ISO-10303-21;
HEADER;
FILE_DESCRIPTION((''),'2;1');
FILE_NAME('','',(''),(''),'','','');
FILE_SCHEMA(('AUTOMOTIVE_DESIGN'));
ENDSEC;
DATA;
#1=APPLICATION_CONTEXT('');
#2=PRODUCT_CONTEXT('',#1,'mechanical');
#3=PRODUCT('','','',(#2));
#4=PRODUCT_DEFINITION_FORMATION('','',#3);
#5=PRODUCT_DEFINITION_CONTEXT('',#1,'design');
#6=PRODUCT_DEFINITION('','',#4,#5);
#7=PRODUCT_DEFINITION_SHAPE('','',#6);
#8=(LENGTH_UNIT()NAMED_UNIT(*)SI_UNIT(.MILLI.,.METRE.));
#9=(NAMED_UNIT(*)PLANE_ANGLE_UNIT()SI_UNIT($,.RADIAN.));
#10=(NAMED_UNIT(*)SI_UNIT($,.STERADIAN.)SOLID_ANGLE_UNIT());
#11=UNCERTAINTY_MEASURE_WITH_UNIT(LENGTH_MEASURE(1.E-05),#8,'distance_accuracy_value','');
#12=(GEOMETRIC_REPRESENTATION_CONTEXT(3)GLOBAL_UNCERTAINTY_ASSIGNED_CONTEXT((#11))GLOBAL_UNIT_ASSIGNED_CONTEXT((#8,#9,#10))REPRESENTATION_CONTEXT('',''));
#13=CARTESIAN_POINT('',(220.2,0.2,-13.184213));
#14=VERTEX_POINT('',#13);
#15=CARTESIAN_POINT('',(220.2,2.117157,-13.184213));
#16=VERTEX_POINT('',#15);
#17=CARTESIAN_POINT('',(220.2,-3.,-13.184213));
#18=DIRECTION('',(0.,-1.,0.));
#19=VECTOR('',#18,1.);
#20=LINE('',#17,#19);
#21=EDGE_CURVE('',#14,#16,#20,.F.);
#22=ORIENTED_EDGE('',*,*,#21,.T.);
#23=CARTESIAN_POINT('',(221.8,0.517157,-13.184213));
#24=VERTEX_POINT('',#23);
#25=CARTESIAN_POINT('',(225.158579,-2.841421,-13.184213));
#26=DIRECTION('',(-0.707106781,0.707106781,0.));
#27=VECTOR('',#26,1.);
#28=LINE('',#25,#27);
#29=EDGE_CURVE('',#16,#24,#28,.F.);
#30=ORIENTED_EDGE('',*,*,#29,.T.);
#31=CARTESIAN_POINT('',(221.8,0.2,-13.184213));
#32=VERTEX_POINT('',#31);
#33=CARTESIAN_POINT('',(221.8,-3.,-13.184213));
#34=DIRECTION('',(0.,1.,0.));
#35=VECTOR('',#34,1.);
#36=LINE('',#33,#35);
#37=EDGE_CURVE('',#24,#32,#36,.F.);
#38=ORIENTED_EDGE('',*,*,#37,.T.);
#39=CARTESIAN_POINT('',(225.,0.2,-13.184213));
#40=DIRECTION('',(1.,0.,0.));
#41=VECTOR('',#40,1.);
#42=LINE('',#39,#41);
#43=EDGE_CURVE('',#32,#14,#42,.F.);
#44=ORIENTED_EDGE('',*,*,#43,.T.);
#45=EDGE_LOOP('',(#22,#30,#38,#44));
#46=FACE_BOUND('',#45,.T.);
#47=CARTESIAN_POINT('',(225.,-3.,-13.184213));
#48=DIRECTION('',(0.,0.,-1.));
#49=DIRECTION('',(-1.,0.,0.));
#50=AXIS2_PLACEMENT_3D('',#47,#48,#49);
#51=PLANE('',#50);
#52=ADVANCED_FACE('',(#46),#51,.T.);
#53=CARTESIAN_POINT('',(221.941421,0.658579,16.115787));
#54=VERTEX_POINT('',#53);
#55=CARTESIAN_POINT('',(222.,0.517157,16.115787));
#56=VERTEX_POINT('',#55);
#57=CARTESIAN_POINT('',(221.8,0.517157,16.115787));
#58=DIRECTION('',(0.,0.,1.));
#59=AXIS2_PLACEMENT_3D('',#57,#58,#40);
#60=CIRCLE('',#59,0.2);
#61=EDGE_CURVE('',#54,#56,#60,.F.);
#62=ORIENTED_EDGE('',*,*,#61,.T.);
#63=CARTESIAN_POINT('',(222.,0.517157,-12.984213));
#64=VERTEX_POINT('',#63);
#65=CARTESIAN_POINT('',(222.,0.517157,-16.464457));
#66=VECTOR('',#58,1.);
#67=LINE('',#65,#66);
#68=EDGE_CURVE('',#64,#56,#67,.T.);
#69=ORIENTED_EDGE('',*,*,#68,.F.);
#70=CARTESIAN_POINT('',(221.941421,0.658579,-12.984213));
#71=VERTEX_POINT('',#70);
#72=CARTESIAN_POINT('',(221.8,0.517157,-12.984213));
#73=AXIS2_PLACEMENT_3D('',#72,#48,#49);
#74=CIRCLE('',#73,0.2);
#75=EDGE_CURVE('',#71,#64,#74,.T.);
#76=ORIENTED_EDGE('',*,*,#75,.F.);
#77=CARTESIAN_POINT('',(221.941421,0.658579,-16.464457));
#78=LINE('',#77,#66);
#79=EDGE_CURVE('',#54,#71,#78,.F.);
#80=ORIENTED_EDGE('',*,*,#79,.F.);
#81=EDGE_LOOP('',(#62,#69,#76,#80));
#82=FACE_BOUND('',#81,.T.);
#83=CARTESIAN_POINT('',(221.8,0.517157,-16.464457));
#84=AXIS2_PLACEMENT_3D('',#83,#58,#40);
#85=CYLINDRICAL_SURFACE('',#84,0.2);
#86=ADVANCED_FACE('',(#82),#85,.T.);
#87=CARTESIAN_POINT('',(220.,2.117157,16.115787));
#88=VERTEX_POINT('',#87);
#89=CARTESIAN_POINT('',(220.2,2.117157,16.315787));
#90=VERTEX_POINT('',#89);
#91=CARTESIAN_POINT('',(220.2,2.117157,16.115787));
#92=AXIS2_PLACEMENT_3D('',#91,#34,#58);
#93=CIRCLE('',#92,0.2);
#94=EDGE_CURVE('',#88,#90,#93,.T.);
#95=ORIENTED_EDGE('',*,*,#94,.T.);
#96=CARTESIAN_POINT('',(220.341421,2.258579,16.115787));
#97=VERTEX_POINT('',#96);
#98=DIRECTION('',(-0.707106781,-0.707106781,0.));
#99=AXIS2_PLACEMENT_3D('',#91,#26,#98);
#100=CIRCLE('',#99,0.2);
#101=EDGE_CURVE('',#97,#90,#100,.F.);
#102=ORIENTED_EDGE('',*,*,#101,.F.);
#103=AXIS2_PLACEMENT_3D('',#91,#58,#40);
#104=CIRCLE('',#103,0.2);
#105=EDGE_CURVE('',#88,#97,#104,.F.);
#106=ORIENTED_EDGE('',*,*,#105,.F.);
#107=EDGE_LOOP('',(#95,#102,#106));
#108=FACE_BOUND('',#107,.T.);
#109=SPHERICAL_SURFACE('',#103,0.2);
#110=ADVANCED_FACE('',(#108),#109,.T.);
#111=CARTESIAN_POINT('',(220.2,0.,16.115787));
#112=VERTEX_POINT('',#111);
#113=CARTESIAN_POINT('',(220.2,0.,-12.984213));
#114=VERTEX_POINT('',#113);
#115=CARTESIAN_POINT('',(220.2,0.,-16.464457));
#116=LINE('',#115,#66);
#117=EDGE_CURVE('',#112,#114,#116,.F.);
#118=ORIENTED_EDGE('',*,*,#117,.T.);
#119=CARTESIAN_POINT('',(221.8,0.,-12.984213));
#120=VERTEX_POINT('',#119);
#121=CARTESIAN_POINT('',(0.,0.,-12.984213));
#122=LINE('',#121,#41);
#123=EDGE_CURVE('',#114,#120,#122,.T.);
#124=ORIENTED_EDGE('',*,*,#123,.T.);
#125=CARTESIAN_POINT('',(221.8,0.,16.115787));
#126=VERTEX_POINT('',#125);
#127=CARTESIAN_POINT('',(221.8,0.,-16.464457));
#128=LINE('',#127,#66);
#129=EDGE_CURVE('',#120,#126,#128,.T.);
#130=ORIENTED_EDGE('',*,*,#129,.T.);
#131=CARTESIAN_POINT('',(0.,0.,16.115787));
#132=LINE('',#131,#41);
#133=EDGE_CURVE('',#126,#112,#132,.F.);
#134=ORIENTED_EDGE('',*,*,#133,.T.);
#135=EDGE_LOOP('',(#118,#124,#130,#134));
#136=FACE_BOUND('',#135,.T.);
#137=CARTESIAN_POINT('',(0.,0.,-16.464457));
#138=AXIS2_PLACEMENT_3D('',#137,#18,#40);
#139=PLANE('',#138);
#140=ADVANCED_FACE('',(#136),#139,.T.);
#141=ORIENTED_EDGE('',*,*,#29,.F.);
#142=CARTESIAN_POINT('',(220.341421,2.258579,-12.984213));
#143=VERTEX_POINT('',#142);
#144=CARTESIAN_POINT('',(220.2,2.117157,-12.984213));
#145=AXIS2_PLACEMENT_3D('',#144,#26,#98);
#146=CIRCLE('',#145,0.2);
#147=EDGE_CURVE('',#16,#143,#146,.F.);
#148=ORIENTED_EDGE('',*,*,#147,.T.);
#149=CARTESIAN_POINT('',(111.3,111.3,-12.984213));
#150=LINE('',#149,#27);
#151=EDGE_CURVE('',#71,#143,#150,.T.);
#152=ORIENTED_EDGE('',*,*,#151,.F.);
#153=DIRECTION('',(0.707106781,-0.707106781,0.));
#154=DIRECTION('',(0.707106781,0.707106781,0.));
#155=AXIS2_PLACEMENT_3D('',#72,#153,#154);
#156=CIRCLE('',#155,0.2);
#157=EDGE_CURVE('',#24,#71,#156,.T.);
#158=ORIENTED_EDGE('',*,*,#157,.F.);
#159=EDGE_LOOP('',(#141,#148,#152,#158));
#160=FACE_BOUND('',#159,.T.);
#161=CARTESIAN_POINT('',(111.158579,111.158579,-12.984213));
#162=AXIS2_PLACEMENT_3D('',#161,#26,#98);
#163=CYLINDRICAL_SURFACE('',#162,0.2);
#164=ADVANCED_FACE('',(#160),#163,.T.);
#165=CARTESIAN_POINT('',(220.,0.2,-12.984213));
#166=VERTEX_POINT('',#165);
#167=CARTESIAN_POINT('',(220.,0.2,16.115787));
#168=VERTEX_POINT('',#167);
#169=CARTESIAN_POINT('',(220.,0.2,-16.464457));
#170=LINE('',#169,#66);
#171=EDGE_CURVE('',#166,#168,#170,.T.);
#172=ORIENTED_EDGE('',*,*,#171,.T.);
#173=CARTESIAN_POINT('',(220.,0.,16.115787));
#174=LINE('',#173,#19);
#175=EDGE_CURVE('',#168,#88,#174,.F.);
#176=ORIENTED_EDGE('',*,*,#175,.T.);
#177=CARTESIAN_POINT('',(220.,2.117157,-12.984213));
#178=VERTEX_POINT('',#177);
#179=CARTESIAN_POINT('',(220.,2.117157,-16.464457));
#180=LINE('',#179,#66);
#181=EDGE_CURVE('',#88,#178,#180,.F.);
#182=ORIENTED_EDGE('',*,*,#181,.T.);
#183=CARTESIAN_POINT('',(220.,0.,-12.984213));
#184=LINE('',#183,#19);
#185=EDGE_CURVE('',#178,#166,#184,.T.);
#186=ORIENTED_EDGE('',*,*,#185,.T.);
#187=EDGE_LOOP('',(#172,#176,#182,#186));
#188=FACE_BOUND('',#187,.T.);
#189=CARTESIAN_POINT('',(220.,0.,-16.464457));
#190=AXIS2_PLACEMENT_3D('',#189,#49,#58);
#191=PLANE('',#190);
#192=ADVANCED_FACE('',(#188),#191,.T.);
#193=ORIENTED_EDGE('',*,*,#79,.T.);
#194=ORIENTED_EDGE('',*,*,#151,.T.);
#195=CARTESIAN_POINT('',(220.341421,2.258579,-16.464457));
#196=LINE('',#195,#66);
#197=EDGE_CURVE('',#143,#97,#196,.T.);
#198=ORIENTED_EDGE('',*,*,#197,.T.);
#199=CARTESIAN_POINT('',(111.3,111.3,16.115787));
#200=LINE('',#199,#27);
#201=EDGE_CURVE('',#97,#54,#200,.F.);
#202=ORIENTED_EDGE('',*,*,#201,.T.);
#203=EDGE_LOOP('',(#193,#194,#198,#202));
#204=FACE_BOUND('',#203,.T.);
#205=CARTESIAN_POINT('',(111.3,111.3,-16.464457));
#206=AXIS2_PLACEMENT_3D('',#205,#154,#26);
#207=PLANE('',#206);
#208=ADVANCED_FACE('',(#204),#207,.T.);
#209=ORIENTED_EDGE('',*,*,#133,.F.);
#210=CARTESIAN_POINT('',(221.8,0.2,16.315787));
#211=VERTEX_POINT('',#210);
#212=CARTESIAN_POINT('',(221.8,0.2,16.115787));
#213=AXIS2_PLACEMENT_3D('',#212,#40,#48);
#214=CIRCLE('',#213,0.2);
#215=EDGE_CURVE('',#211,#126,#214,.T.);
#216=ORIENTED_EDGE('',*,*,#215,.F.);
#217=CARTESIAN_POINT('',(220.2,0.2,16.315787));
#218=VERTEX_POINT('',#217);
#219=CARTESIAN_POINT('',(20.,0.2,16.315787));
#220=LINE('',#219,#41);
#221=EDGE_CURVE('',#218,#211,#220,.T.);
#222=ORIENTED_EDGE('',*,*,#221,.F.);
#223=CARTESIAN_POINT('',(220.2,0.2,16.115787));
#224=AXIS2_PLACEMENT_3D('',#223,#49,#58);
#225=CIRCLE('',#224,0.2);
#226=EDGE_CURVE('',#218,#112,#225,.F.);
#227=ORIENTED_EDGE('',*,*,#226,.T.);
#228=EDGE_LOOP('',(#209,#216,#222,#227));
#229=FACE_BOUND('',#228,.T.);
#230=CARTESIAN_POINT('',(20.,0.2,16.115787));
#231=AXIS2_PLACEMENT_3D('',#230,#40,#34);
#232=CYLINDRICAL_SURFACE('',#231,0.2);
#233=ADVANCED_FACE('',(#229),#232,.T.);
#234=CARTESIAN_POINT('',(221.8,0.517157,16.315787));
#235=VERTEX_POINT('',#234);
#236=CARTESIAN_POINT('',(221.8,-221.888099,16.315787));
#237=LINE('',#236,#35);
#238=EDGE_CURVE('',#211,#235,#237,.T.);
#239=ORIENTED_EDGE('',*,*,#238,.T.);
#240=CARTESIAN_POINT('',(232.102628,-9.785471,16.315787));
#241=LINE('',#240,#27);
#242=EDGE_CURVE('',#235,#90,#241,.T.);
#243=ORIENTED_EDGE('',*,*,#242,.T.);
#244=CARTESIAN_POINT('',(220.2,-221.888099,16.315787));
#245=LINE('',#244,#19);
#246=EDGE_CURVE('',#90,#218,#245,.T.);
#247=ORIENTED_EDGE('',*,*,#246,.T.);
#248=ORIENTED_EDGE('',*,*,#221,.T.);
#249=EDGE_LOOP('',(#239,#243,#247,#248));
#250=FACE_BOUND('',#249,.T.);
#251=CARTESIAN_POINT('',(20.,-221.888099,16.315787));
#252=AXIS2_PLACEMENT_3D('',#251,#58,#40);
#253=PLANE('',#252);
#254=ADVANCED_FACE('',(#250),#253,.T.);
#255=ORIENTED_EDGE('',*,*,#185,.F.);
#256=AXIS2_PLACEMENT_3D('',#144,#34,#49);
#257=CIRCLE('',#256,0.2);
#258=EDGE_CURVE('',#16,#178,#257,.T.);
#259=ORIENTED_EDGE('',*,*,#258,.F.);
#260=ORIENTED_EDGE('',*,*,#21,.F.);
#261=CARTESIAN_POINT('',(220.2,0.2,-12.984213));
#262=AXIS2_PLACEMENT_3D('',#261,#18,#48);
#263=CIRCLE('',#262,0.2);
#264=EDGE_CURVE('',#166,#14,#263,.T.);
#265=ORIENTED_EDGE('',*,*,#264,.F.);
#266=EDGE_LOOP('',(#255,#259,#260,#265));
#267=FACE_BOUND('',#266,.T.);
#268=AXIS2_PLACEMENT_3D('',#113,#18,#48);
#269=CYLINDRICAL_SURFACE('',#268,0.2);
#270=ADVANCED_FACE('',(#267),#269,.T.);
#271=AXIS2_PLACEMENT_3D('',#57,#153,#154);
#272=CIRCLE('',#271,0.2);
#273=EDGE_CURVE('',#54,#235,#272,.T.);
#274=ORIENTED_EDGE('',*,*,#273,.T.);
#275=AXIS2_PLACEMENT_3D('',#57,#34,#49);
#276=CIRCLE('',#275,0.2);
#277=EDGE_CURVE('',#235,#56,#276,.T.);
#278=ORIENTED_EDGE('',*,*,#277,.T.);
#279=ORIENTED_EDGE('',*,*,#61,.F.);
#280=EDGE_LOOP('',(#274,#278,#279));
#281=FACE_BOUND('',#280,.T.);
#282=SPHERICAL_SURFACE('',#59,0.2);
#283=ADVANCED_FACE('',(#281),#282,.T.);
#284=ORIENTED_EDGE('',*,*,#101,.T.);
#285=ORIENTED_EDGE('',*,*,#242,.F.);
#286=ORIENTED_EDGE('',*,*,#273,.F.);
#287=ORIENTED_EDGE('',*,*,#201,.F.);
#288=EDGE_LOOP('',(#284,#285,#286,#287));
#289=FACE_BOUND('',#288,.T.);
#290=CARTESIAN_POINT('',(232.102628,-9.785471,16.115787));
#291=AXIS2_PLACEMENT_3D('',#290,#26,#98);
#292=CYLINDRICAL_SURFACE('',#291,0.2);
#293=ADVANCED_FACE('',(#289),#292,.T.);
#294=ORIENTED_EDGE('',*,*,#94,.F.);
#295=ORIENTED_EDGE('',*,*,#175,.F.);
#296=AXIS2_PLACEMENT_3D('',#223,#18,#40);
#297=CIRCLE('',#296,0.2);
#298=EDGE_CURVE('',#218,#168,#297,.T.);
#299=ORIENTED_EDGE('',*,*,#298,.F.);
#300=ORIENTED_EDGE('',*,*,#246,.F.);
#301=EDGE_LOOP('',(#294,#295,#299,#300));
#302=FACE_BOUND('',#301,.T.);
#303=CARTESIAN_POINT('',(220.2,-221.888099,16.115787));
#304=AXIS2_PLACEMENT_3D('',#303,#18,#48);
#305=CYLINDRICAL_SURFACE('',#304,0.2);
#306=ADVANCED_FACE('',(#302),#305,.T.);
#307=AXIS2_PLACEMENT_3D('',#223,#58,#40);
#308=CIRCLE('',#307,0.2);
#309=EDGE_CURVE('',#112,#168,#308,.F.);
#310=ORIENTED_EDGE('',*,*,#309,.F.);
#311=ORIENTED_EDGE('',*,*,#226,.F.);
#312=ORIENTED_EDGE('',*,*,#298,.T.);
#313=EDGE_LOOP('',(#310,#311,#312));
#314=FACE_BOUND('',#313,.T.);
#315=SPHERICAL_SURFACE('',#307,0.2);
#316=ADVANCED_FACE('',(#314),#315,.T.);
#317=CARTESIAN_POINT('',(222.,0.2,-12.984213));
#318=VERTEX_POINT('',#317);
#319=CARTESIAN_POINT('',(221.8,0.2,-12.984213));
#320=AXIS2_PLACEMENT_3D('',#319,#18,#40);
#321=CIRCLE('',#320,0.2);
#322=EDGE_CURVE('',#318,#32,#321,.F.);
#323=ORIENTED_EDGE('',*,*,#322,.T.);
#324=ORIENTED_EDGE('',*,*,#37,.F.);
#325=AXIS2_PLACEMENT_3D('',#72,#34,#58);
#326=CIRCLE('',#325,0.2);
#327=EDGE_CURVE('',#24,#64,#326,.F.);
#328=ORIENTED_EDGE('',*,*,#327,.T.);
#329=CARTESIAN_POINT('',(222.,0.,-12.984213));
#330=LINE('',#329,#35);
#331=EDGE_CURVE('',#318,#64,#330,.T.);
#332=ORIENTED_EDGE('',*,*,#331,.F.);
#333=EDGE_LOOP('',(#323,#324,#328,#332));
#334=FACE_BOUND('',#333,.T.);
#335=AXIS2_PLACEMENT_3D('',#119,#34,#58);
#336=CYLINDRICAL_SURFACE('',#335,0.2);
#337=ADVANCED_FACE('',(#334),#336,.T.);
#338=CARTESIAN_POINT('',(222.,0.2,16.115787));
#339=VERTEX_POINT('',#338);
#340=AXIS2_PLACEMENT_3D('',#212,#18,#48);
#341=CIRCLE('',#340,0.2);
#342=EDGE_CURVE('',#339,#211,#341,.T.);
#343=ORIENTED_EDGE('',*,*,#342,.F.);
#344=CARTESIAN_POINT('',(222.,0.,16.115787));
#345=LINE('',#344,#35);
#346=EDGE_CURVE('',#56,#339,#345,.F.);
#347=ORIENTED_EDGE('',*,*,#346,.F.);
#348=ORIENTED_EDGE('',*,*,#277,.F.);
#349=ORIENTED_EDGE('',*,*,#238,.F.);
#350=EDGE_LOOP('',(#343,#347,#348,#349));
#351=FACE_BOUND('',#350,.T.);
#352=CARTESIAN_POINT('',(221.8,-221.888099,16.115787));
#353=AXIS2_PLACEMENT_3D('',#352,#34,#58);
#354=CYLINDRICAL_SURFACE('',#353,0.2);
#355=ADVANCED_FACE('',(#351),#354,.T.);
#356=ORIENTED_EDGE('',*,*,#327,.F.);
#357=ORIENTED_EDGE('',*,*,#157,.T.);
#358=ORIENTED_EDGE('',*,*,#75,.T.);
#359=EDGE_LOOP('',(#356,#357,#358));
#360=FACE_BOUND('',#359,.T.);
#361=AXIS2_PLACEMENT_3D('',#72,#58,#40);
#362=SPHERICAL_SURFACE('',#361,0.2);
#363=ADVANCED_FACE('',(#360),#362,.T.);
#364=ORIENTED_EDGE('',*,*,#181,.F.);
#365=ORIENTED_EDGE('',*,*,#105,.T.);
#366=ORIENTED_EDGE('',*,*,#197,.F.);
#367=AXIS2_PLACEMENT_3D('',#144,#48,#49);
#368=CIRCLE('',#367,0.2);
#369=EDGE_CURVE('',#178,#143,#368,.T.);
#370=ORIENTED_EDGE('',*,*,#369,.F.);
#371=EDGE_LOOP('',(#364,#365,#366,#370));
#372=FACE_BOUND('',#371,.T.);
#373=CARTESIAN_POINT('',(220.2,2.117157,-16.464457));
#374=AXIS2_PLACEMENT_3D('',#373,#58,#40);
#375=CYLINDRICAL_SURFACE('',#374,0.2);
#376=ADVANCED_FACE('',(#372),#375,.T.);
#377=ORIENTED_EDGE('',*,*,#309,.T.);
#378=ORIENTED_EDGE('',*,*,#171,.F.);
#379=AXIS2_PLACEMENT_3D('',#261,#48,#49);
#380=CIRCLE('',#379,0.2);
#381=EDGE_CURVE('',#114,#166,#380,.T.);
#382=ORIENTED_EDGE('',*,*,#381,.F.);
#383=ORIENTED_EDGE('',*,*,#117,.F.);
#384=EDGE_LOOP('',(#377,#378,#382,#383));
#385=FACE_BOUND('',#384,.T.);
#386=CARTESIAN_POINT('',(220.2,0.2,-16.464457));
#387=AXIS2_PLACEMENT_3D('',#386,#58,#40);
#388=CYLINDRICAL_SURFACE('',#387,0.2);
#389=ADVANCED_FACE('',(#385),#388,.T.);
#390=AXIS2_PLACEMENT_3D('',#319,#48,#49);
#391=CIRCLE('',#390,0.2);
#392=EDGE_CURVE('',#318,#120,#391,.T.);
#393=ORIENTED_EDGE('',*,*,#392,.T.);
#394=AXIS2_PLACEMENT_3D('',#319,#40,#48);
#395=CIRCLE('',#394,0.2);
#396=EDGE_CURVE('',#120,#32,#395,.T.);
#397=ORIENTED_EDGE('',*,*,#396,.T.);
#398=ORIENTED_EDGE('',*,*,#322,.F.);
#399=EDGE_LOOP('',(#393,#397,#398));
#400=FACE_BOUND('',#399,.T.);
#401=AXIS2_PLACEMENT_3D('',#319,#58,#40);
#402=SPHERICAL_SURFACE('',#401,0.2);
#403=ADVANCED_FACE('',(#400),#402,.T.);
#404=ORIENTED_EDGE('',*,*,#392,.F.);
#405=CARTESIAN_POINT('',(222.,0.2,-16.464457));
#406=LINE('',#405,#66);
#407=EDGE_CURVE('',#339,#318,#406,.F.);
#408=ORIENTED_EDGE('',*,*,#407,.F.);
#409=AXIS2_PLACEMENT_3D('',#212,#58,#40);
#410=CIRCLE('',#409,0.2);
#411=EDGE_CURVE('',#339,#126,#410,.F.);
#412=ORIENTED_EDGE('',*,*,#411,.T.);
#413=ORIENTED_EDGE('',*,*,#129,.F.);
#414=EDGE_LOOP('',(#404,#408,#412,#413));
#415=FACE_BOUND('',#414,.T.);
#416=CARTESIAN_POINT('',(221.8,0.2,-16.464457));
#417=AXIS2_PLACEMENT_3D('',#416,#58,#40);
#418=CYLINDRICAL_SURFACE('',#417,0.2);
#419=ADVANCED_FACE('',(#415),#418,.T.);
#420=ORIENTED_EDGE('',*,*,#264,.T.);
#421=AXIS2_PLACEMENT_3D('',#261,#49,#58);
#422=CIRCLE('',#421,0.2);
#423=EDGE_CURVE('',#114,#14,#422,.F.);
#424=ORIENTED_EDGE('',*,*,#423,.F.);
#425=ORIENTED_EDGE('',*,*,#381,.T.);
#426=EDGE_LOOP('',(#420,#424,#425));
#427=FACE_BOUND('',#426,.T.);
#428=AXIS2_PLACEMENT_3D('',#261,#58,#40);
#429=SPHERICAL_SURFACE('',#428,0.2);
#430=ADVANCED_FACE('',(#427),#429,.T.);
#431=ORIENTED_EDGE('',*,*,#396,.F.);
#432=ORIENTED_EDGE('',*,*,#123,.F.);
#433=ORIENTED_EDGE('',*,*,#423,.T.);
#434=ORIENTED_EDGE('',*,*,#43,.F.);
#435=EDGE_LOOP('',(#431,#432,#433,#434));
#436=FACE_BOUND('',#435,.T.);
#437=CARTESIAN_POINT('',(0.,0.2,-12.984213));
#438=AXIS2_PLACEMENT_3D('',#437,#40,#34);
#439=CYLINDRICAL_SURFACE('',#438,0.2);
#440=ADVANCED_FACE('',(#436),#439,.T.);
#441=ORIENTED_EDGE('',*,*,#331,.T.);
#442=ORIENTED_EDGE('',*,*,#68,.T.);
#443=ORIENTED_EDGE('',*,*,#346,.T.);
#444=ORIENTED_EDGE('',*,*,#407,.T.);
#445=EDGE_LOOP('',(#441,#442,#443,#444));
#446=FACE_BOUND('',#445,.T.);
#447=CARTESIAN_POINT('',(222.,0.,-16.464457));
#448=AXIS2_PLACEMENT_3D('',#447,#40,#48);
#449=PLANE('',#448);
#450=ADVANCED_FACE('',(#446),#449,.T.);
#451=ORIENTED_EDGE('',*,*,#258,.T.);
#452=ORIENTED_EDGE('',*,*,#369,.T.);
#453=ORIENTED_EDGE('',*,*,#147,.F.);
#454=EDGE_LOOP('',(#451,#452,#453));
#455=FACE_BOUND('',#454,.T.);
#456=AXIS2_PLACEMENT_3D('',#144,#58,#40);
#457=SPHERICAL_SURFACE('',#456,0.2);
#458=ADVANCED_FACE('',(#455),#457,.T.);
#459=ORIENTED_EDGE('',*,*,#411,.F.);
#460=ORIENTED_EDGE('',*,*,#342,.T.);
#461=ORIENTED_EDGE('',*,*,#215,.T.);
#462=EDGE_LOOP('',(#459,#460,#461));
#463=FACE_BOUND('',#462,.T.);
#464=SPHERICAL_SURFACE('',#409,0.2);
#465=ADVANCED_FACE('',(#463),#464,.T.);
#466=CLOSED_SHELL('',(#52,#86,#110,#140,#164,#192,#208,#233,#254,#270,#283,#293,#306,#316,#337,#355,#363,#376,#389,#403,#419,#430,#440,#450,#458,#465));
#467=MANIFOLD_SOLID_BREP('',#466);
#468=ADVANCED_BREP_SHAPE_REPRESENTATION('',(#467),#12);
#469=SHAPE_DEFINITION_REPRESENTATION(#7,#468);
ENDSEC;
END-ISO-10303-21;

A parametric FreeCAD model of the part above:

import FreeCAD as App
import Part
import Sketcher
from FreeCAD import Vector
Q = App.Units.Quantity


def add_polygon(sketch, points):
    """Adds a closed chain of lines whose ends are joined by coincident constraints."""
    first, n = sketch.GeometryCount, len(points)
    for a, b in zip(points, points[1:] + points[:1]):
        sketch.addGeometry(Part.LineSegment(App.Vector(*a, 0), App.Vector(*b, 0)), False)
    for i in range(n):
        sketch.addConstraint(Sketcher.Constraint("Coincident", first + i, 2, first + (i + 1) % n, 1))

doc = App.newDocument("Part")
body = doc.addObject("PartDesign::Body", "Body")

# Sketch on XY plane
sketch1 = body.newObject("Sketcher::SketchObject", "Sketch")
sketch1.AttachmentSupport = (doc.getObject("XY_Plane"), [""])
sketch1.MapMode = "FlatFace"
add_polygon(sketch1, [(220, 2.6), (220, 0), (222, 0), (222, 0.6)])  # lines 0-3
sketch1.addConstraint([
    Sketcher.Constraint("Vertical", 0),
    Sketcher.Constraint("Horizontal", 1),
    Sketcher.Constraint("Vertical", 2),
    Sketcher.Constraint("PointOnObject", 0, 2, -1),
    Sketcher.Constraint("DistanceX", 1, 1, 1, 2, 2.0),
    Sketcher.Constraint("Angle", 3, Q("135 deg")),
    Sketcher.Constraint("DistanceY", 0, 2, 0, 1, 2.6),
    Sketcher.Constraint("DistanceX", -1, 1, 0, 2, 220.0),
])
pad1 = body.newObject("PartDesign::Pad", "Pad")
pad1.Profile = sketch1
pad1.Type = "TwoLengths"
pad1.Length = 16.315787
pad1.Length2 = 13.184213
doc.recompute()

fillet = body.newObject("PartDesign::Fillet", "Fillet")
fillet.Base = (pad1, ["Edge1"])
fillet.UseAllEdges = True
fillet.Radius = 0.2

doc.recompute()
